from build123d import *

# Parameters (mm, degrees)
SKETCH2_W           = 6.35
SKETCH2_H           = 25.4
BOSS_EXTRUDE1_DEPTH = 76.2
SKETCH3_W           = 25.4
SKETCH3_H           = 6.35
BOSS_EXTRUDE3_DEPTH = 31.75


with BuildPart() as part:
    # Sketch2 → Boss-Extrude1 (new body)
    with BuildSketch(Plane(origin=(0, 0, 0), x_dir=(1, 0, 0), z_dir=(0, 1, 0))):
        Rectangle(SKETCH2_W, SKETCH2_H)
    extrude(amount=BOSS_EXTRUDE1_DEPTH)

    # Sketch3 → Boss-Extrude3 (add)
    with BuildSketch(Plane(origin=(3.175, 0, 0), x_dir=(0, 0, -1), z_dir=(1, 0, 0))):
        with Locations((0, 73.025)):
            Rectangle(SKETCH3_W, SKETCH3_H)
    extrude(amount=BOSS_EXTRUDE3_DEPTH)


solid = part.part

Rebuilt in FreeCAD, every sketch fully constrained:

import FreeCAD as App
import Part
import Sketcher
Q = App.Units.Quantity


def add_polygon(sketch, points):
    """Adds a closed chain of lines whose ends are joined by coincident constraints."""
    first, n = sketch.GeometryCount, len(points)
    for a, b in zip(points, points[1:] + points[:1]):
        sketch.addGeometry(Part.LineSegment(App.Vector(*a, 0), App.Vector(*b, 0)), False)
    for i in range(n):
        sketch.addConstraint(Sketcher.Constraint("Coincident", first + i, 2, first + (i + 1) % n, 1))

doc = App.newDocument("Part")
body = doc.addObject("PartDesign::Body", "Body")

# Sketch on XZ plane
sketch1 = body.newObject("Sketcher::SketchObject", "Sketch")
sketch1.AttachmentSupport = (doc.getObject("XZ_Plane"), [""])
sketch1.MapMode = "FlatFace"
add_polygon(sketch1, [(-3, -13), (-3, 13), (3, 13), (3, -13)])  # lines 0-3
sketch1.addConstraint([
    Sketcher.Constraint("Vertical", 0),
    Sketcher.Constraint("Horizontal", 1),
    Sketcher.Constraint("Vertical", 2),
    Sketcher.Constraint("Horizontal", 3),
    Sketcher.Constraint("Symmetric", 0, 2, 2, 2, -1, 1),
    Sketcher.Constraint("DistanceY", 0, 1, 0, 2, Q("1 in")),
    Sketcher.Constraint("DistanceX", 1, 1, 1, 2, Q("0.25 in")),
])
pad1 = body.newObject("PartDesign::Pad", "Pad")
pad1.Profile = sketch1
pad1.Length = Q("3 in")
pad1.Reversed = True

# Sketch on YZ plane
sketch2 = body.newObject("Sketcher::SketchObject", "Sketch001")
sketch2.AttachmentSupport = (doc.getObject("YZ_Plane"), [""])
sketch2.MapMode = "FlatFace"
sketch2.AttachmentOffset = App.Placement(App.Vector(0, 0, 0.125 * 25.4), App.Rotation())
add_polygon(sketch2, [(76, 13), (70, 13), (70, -13), (76, -13)])  # lines 0-3
sketch2.addConstraint([
    Sketcher.Constraint("Horizontal", 0),
    Sketcher.Constraint("Vertical", 1),
    Sketcher.Constraint("Horizontal", 2),
    Sketcher.Constraint("Vertical", 3),
    Sketcher.Constraint("DistanceY", 1, 2, 1, 1, Q("1 in")),
    Sketcher.Constraint("DistanceX", -1, 1, 2, 2, Q("3 in")),
    Sketcher.Constraint("DistanceX", 0, 2, 0, 1, Q("0.25 in")),
    Sketcher.Constraint("DistanceY", -1, 1, 0, 2, Q("0.5 in")),
])
pad2 = body.newObject("PartDesign::Pad", "Pad001")
pad2.Profile = sketch2
pad2.Length = Q("1.25 in")

doc.recompute()
